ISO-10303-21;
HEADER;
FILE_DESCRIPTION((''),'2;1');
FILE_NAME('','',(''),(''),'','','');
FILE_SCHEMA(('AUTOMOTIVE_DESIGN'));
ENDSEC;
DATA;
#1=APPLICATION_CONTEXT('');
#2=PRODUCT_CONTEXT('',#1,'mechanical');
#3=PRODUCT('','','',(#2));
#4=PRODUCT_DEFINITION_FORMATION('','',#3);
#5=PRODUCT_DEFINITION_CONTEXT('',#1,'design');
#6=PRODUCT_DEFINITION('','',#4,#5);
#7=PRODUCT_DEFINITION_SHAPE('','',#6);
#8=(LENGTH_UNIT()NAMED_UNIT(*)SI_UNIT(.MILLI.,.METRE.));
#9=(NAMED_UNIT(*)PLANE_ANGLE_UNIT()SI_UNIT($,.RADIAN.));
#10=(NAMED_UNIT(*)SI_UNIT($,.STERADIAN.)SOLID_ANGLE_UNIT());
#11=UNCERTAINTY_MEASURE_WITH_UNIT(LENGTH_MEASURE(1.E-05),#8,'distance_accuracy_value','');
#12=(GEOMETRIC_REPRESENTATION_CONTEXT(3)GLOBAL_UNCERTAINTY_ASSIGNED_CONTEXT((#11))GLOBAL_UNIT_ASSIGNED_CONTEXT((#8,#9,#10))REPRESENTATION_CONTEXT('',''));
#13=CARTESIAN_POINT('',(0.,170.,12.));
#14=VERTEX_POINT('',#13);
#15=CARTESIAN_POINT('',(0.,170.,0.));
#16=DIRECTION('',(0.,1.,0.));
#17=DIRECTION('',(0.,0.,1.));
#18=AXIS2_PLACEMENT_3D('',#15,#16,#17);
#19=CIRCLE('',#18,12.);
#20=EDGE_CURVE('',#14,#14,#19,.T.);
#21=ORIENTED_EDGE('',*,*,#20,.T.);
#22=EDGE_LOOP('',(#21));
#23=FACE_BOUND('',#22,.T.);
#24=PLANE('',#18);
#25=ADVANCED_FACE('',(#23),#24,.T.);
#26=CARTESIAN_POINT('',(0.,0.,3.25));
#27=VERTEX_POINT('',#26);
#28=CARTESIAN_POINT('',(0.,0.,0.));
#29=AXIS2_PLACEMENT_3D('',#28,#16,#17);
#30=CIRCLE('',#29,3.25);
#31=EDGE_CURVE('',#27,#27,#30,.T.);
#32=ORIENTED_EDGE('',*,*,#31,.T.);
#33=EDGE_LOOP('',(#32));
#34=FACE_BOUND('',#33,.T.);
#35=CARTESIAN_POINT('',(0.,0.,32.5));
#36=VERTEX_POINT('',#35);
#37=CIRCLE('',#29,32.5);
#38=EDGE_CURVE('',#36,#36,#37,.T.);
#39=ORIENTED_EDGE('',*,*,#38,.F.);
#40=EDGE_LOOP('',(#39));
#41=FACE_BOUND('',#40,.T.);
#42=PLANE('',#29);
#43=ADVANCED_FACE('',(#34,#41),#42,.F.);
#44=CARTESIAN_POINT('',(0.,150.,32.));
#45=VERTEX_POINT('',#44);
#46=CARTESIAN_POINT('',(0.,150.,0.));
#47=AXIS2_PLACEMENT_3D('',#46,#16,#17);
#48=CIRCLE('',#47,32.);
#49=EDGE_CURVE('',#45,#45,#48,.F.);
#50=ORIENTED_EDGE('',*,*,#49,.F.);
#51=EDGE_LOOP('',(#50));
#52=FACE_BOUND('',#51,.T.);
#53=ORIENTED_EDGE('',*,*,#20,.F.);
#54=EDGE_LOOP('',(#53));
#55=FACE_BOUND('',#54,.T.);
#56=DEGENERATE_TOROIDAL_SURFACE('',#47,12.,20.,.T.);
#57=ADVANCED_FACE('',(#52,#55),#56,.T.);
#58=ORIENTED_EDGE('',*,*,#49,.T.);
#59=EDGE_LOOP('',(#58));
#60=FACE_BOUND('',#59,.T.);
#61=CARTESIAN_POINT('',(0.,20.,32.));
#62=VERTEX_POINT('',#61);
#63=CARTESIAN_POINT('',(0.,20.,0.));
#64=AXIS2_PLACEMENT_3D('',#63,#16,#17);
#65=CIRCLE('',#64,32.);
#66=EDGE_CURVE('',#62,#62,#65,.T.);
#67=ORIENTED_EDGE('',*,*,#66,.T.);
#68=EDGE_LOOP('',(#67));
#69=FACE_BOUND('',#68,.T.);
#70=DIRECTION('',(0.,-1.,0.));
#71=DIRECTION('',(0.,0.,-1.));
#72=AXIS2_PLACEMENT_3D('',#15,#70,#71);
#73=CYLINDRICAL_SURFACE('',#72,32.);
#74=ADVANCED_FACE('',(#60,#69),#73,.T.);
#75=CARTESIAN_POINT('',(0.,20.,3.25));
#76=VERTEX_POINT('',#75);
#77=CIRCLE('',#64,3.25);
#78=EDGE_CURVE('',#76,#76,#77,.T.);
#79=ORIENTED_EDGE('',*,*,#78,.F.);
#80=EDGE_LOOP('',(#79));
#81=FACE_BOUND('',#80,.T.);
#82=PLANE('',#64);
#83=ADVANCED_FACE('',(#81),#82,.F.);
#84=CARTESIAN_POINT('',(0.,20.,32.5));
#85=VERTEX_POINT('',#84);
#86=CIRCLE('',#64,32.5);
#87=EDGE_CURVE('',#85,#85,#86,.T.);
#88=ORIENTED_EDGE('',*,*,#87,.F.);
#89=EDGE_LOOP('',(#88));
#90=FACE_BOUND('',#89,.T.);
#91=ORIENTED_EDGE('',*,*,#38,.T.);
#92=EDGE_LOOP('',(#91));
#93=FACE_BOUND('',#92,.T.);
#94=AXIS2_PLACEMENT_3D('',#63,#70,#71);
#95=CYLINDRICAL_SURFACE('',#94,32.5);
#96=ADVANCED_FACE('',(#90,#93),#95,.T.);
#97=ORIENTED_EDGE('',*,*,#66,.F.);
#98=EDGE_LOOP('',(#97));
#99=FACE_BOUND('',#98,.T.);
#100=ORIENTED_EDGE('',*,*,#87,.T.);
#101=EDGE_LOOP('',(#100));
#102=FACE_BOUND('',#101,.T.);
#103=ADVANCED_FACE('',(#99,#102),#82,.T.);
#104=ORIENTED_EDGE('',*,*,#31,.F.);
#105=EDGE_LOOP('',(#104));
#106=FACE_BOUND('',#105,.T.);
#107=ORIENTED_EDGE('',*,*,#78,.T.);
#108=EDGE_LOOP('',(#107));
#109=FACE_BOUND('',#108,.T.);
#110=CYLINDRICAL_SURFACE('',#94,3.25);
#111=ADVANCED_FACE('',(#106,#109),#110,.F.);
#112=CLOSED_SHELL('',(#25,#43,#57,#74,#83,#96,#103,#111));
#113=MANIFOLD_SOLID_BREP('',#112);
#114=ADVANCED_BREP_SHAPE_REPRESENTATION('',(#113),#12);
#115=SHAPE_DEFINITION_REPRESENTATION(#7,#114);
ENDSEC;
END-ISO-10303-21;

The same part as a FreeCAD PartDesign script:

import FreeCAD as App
import Part
import Sketcher

V = App.Vector


def edges_at(feature, points):
    """Names of the edges that pass closest to the given points."""
    edges = feature.Shape.Edges
    near = lambda p: min(range(len(edges)), key=lambda i: edges[i].distToShape(Part.Vertex(*p))[0])
    return sorted({f"Edge{near(p) + 1}" for p in points})

doc = App.newDocument("Part")
body = doc.addObject("PartDesign::Body", "Body")

# Sketch on XZ plane
sketch1 = body.newObject("Sketcher::SketchObject", "Sketch")
sketch1.AttachmentSupport = (doc.getObject("XZ_Plane"), [""])
sketch1.MapMode = "FlatFace"
sketch1.addGeometry([
    Part.Circle(V(0, 0, 0), V(0, 0, 1), 32.5),
    Part.Circle(V(0, 0, 0), V(0, 0, 1), 3.25),
], False)
sketch1.addConstraint([
    Sketcher.Constraint("Coincident", 0, 3, -1, 1),
    Sketcher.Constraint("Coincident", 1, 3, -1, 1),
    Sketcher.Constraint("Diameter", 0, 65.0),
    Sketcher.Constraint("Diameter", 1, 6.5),
])
pad1 = body.newObject("PartDesign::Pad", "Pad")
pad1.Profile = sketch1
pad1.Length = 20
pad1.Reversed = True

# Sketch on XZ plane
sketch2 = body.newObject("Sketcher::SketchObject", "Sketch001")
sketch2.AttachmentSupport = (doc.getObject("XZ_Plane"), [""])
sketch2.MapMode = "FlatFace"
sketch2.AttachmentOffset = App.Placement(V(0, 0, -20), App.Rotation())
sketch2.addGeometry(Part.Circle(V(0, 0, 0), V(0, 0, 1), 32), False)
sketch2.addConstraint([
    Sketcher.Constraint("Coincident", 0, 3, -1, 1),
    Sketcher.Constraint("Diameter", 0, 64.0),
])
pad2 = body.newObject("PartDesign::Pad", "Pad001")
pad2.Profile = sketch2
pad2.Length = 150
pad2.Reversed = True
doc.recompute()

fillet = body.newObject("PartDesign::Fillet", "Fillet")
fillet.Base = (pad2, edges_at(pad2, [(-32, 170, 0)]))
fillet.Radius = 20

doc.recompute()
